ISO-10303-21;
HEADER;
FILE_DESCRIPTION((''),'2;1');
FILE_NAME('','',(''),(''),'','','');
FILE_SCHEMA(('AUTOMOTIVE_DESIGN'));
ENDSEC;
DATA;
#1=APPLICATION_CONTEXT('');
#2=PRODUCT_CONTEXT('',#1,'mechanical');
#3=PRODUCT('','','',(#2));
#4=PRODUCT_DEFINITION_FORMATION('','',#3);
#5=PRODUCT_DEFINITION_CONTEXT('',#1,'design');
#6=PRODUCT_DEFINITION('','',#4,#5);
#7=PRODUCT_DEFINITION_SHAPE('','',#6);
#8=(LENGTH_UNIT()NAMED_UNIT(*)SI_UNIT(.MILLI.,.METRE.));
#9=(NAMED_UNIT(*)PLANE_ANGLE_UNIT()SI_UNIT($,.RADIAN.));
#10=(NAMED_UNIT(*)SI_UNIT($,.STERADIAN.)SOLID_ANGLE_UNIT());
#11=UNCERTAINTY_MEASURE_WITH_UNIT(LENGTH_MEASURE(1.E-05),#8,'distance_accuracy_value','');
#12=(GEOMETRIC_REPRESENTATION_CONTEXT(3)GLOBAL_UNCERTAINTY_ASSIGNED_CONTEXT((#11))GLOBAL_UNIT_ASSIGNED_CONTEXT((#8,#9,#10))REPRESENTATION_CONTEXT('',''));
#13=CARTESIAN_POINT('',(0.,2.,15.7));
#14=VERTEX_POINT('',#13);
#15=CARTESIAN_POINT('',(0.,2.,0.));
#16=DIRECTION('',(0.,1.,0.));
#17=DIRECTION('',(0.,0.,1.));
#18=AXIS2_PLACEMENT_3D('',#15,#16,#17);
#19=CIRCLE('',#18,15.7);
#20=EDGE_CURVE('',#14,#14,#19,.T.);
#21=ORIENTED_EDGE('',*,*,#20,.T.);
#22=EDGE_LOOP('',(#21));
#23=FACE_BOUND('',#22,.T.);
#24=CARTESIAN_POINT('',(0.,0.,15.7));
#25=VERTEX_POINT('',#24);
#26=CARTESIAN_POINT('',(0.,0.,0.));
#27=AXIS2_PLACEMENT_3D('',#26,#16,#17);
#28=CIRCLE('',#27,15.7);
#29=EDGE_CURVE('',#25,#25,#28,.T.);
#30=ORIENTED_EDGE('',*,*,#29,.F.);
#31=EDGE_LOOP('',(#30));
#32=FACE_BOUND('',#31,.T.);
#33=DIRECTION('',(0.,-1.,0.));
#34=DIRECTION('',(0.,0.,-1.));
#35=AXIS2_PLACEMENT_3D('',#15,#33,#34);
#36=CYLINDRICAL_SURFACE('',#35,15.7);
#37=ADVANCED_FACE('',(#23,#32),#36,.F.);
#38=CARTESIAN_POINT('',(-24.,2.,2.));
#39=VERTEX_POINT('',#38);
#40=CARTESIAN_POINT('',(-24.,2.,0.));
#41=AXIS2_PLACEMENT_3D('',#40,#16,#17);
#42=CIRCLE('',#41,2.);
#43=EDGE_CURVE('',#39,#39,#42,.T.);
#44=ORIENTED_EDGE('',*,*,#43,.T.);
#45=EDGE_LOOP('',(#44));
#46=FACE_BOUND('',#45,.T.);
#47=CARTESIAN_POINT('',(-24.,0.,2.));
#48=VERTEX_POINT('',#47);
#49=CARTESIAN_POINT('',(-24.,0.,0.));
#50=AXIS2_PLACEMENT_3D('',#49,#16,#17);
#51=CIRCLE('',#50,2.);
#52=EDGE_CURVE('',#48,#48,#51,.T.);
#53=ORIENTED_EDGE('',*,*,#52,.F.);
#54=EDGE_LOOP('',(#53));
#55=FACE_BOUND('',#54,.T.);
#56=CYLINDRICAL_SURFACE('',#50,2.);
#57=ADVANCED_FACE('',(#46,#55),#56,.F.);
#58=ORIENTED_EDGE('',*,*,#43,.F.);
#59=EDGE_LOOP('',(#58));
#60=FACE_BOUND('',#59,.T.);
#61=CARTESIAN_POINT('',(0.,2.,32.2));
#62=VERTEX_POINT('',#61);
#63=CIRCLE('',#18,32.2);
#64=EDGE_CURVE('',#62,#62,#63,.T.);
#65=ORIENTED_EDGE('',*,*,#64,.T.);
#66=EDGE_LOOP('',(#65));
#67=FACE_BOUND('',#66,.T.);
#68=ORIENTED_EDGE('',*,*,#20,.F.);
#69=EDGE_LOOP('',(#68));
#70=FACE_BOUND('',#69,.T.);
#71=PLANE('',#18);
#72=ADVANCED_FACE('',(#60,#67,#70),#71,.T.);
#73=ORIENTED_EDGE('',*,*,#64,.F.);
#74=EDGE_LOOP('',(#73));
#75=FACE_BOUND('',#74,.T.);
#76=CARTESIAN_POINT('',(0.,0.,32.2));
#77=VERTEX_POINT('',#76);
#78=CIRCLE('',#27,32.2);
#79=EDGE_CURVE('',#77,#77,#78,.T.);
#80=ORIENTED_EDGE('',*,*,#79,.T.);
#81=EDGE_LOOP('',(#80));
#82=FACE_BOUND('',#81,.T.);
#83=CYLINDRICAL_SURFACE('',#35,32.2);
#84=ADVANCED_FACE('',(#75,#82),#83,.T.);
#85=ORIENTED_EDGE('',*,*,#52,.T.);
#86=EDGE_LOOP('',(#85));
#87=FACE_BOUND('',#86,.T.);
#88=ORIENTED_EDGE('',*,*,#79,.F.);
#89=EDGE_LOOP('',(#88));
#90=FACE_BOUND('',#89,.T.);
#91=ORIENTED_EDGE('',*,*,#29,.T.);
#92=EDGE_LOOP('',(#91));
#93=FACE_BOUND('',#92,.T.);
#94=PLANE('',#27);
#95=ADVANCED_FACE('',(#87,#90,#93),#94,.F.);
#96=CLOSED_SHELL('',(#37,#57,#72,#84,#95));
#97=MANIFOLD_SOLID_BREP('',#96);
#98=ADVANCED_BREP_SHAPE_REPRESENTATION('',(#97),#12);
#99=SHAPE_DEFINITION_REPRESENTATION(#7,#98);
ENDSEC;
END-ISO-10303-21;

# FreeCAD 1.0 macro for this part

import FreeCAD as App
import Part
import Sketcher
from FreeCAD import Vector

doc = App.newDocument("Part")
body = doc.addObject("PartDesign::Body", "Body")

sketch1 = doc.addObject("Sketcher::SketchObject", "Sketch")
body.addObject(sketch1)
sketch1.AttachmentSupport = (doc.XZ_Plane, [""])
sketch1.MapMode = "FlatFace"
sketch1.addGeometry([
    Part.Circle(Vector(0, 0, 0), Vector(0, 0, 1), 32),
    Part.Circle(Vector(0, 0, 0), Vector(0, 0, 1), 16),
], False)
sketch1.addConstraint([
    Sketcher.Constraint("Coincident", 0, 3, -1, 1),
    Sketcher.Constraint("Coincident", 1, 3, -1, 1),
    Sketcher.Constraint("Diameter", 0, 64.4),
    Sketcher.Constraint("Diameter", 1, 31.4),
])
pad1 = doc.addObject("PartDesign::Pad", "Pad")
body.addObject(pad1)
pad1.Profile = sketch1
pad1.Length = 2
pad1.Reversed = True

sketch2 = doc.addObject("Sketcher::SketchObject", "Sketch001")
body.addObject(sketch2)
sketch2.AttachmentSupport = (doc.XZ_Plane, [""])
sketch2.MapMode = "FlatFace"
sketch2.AttachmentOffset = App.Placement(Vector(0, 0, -2), App.Rotation())
sketch2.addGeometry(Part.Circle(Vector(-24, 0, 0), Vector(0, 0, 1), 2), False)
sketch2.addConstraint([
    Sketcher.Constraint("PointOnObject", 0, 3, -1),
    Sketcher.Constraint("Diameter", 0, 4.0),
    Sketcher.Constraint("DistanceX", 0, 3, -1, 1, 24.0),
])
pocket1 = doc.addObject("PartDesign::Pocket", "Pocket")
body.addObject(pocket1)
pocket1.Profile = sketch2
pocket1.Type = "ThroughAll"
pocket1.Reversed = True

doc.recompute()
